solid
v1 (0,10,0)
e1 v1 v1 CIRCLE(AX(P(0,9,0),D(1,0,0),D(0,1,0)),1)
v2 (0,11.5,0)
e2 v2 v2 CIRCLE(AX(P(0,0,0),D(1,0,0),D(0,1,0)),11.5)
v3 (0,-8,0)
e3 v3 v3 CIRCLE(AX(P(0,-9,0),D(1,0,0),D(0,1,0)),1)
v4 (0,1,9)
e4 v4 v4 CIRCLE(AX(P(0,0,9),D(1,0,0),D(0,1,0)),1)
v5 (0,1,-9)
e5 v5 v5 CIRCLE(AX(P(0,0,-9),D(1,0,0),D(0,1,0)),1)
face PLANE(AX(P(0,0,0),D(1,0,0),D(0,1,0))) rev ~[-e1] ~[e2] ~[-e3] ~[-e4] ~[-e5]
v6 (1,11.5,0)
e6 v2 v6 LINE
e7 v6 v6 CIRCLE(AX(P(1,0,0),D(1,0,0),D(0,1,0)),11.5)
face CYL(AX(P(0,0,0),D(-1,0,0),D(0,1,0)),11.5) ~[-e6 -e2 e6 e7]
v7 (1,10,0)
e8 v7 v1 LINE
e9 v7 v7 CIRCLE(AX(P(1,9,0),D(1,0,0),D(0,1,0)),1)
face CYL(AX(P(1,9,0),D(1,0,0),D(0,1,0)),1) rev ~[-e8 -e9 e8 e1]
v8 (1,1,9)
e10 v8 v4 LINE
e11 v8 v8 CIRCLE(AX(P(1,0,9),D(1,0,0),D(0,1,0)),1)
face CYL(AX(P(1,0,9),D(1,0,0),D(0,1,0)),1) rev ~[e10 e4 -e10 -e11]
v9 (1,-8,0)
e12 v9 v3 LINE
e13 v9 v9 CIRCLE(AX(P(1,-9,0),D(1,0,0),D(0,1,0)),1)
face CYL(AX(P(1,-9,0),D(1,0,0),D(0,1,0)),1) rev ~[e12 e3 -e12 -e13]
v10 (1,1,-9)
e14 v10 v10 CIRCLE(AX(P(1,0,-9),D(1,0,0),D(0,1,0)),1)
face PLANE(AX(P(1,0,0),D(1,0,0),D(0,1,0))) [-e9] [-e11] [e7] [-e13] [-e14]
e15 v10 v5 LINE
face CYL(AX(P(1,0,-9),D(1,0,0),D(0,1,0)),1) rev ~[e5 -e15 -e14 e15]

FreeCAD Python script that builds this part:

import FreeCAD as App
import Part
import Sketcher
from FreeCAD import Vector

doc = App.newDocument("Part")
params = doc.addObject("Spreadsheet::Sheet", "Params")
for row, (alias, value) in enumerate([
    ("sketch1_diameter", "23 mm"),
    ("pad1_length", "1 mm"),
    ("sketch2_diameter", "2 mm"),
], start=1):
    params.set(f"A{row}", alias)
    params.set(f"B{row}", "=" + value)
    params.setAlias(f"B{row}", alias)

body = doc.addObject("PartDesign::Body", "Body")

# Sketch on YZ plane
sketch1 = body.newObject("Sketcher::SketchObject", "Sketch")
sketch1.AttachmentSupport = (doc.getObject("YZ_Plane"), [""])
sketch1.MapMode = "FlatFace"
sketch1.addGeometry(Part.Circle(Vector(0, 0, 0), Vector(0, 0, 1), 12), False)
sketch1.addConstraint([
    Sketcher.Constraint("Coincident", 0, 3, -1, 1),
    Sketcher.Constraint("Diameter", 0, 23.0),
])
sketch1.setExpression("Constraints[1]", "Params.sketch1_diameter")
pad1 = body.newObject("PartDesign::Pad", "Pad")
pad1.Profile = sketch1
pad1.setExpression("Length", "Params.pad1_length")

# Sketch on YZ plane
sketch2 = body.newObject("Sketcher::SketchObject", "Sketch001")
sketch2.AttachmentSupport = (doc.getObject("YZ_Plane"), [""])
sketch2.MapMode = "FlatFace"
sketch2.AttachmentOffset = App.Placement(Vector(0, 0, 1), App.Rotation())
sketch2.addGeometry([
    Part.Circle(Vector(0, 9, 0), Vector(0, 0, 1), 1),
    Part.Circle(Vector(9, 0, 0), Vector(0, 0, 1), 1),
    Part.Circle(Vector(0, -9, 0), Vector(0, 0, 1), 1),
    Part.Circle(Vector(-9, 0, 0), Vector(0, 0, 1), 1),
], False)
sketch2.addConstraint([
    Sketcher.Constraint("Equal", 0, 1),
    Sketcher.Constraint("Equal", 1, 2),
    Sketcher.Constraint("Equal", 2, 3),
    Sketcher.Constraint("Symmetric", 0, 3, 2, 3, -1, 1),
    Sketcher.Constraint("Symmetric", 1, 3, 3, 3, -1, 1),
    Sketcher.Constraint("PointOnObject", 0, 3, -2),
    Sketcher.Constraint("PointOnObject", 1, 3, -1),
    Sketcher.Constraint("Diameter", 0, 2.0),
    Sketcher.Constraint("DistanceY", -1, 1, 0, 3, 9.0),
    Sketcher.Constraint("DistanceX", -1, 1, 1, 3, 9.0),
])
sketch2.setExpression("Constraints[7]", "Params.sketch2_diameter")
pocket1 = body.newObject("PartDesign::Pocket", "Pocket")
pocket1.Profile = sketch2
pocket1.Type = "ThroughAll"

doc.recompute()
